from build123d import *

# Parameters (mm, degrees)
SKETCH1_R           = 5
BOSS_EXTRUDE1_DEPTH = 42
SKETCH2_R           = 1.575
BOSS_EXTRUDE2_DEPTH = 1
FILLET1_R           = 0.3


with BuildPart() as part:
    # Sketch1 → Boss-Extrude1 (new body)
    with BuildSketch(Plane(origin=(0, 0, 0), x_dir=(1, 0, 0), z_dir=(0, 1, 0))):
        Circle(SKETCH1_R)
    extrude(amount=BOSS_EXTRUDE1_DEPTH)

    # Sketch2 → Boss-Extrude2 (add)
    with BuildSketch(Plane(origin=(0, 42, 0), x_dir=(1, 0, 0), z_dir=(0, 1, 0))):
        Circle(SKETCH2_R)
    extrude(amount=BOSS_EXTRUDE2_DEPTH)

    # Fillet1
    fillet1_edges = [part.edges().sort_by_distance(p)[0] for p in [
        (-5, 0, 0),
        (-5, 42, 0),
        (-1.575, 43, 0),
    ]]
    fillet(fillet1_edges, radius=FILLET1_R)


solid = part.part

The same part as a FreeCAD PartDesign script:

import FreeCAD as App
import Part
import Sketcher


def edges_at(feature, points):
    """Names of the edges that pass closest to the given points."""
    edges = feature.Shape.Edges
    near = lambda p: min(range(len(edges)), key=lambda i: edges[i].distToShape(Part.Vertex(*p))[0])
    return sorted({f"Edge{near(p) + 1}" for p in points})

doc = App.newDocument("Part")
body = doc.addObject("PartDesign::Body", "Body")

sketch1 = body.newObject("Sketcher::SketchObject", "Sketch")
sketch1.AttachmentSupport = (doc.getObject("XZ_Plane"), [""])
sketch1.MapMode = "FlatFace"
sketch1.addGeometry(Part.Circle(App.Vector(0, 0, 0), App.Vector(0, 0, 1), 5), False)
sketch1.addConstraint([
    Sketcher.Constraint("Coincident", 0, 3, -1, 1),
    Sketcher.Constraint("Diameter", 0, 10.0),
])
pad1 = body.newObject("PartDesign::Pad", "Pad")
pad1.Profile = sketch1
pad1.Length = 42
pad1.Reversed = True

sketch2 = body.newObject("Sketcher::SketchObject", "Sketch001")
sketch2.AttachmentSupport = (doc.getObject("XZ_Plane"), [""])
sketch2.MapMode = "FlatFace"
sketch2.AttachmentOffset = App.Placement(App.Vector(0, 0, -42), App.Rotation())
sketch2.addGeometry(Part.Circle(App.Vector(0, 0, 0), App.Vector(0, 0, 1), 1.6), False)
sketch2.addConstraint([
    Sketcher.Constraint("Coincident", 0, 3, -1, 1),
    Sketcher.Constraint("Diameter", 0, 3.15),
])
pad2 = body.newObject("PartDesign::Pad", "Pad001")
pad2.Profile = sketch2
pad2.Length = 1
pad2.Reversed = True
doc.recompute()

fillet = body.newObject("PartDesign::Fillet", "Fillet")
fillet.Base = (pad2, edges_at(pad2, [(-5, 0, 0), (-5, 42, 0), (-1.575, 43, 0)]))
fillet.Radius = 0.3

doc.recompute()
